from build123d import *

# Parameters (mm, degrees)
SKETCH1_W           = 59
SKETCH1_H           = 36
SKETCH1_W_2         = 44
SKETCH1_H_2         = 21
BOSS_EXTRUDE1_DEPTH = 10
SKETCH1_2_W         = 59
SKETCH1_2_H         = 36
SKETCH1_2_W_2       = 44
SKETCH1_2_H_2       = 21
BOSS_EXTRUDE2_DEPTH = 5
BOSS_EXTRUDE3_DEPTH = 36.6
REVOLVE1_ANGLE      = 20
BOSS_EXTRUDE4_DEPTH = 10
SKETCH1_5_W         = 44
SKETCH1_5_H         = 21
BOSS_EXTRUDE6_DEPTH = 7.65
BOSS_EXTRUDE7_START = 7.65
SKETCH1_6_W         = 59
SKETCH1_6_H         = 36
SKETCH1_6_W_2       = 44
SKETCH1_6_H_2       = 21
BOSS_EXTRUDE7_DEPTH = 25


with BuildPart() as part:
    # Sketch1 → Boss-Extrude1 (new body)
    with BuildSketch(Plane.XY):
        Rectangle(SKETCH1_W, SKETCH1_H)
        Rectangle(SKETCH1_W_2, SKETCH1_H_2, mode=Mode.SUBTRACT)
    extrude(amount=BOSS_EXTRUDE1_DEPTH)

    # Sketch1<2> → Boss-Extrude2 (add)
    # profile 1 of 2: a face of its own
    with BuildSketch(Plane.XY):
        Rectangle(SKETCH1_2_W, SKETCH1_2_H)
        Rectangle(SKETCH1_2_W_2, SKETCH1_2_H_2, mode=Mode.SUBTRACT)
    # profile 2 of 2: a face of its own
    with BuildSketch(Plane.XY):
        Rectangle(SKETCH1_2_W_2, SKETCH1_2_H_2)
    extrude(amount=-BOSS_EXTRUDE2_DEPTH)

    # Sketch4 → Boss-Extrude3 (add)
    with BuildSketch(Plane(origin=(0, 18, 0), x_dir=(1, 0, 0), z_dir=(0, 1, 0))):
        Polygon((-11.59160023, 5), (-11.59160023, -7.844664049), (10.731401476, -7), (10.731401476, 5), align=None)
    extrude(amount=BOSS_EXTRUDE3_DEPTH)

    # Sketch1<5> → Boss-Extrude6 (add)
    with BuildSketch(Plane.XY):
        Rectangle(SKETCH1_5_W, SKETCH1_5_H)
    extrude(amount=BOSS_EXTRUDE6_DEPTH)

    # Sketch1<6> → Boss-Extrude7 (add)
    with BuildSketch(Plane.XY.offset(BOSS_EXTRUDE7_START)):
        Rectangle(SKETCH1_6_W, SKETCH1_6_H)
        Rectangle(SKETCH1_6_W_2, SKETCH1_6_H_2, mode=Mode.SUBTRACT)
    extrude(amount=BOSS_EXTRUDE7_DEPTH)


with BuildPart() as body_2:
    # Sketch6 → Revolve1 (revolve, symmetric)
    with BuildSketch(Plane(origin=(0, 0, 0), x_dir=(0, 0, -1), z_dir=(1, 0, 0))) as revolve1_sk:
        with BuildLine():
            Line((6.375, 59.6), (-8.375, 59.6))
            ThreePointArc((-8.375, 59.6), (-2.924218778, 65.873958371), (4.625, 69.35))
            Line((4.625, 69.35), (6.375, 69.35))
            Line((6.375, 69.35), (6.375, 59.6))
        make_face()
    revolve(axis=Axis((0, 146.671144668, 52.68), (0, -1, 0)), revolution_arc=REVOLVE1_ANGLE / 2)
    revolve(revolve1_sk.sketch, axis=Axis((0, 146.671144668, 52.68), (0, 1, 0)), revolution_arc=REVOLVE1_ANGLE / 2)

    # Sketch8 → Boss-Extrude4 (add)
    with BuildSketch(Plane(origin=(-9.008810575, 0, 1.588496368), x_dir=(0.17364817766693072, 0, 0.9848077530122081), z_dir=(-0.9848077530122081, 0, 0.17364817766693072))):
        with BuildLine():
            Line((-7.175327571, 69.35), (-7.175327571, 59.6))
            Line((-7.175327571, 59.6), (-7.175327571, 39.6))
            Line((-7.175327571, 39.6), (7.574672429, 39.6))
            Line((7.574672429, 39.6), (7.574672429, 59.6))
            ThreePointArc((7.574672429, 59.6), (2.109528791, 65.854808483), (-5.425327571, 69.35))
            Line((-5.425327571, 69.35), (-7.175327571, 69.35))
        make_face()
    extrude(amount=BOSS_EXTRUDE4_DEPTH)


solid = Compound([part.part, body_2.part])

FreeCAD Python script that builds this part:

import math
import FreeCAD as App
import Part
import Sketcher
from FreeCAD import Vector


def add_polygon(sketch, points):
    """Adds a closed chain of lines whose ends are joined by coincident constraints."""
    first, n = sketch.GeometryCount, len(points)
    for a, b in zip(points, points[1:] + points[:1]):
        sketch.addGeometry(Part.LineSegment(App.Vector(*a, 0), App.Vector(*b, 0)), False)
    for i in range(n):
        sketch.addConstraint(Sketcher.Constraint("Coincident", first + i, 2, first + (i + 1) % n, 1))

doc = App.newDocument("Part")
params = doc.addObject("Spreadsheet::Sheet", "Params")
for row, (alias, value) in enumerate([
    ("sketch1_width", "59 mm"),
    ("sketch1_width2", "44 mm"),
    ("sketch1_height", "36 mm"),
    ("sketch1_height2", "21 mm"),
    ("pad1_length", "10 mm"),
    ("sketch2_width", "59 mm"),
    ("sketch2_height", "36 mm"),
    ("pad2_length", "5 mm"),
    ("sketch3_height", "12 mm"),
    ("pad3_length", "36.6 mm"),
    ("sketch4_width", "44 mm"),
    ("sketch4_height", "21 mm"),
    ("pad4_length", "7.65 mm"),
    ("sketch5_width", "59 mm"),
    ("sketch5_width2", "44 mm"),
    ("sketch5_height", "36 mm"),
    ("sketch5_height2", "21 mm"),
    ("pad5_length", "25 mm"),
    ("sketch6_radius", "19.75 mm"),
    ("sketch6_width", "9.75 mm"),
    ("sketch6_height", "14.75 mm"),
    ("revolution_angle", "10 deg"),
    ("sketch7_radius", "19.75 mm"),
    ("sketch7_width", "9.75 mm"),
    ("sketch7_height", "14.75 mm"),
    ("revolution2_angle", "10 deg"),
    ("sketch8_radius", "20 mm"),
    ("sketch8_height", "20 mm"),
    ("sketch8_width", "14.75 mm"),
    ("sketch8_height2", "29.75 mm"),
    ("pad6_length", "10 mm"),
], start=1):
    params.set(f"A{row}", alias)
    params.set(f"B{row}", "=" + value)
    params.setAlias(f"B{row}", alias)

body = doc.addObject("PartDesign::Body", "Body")

sketch1 = doc.addObject("Sketcher::SketchObject", "Sketch")
body.addObject(sketch1)
sketch1.AttachmentSupport = (doc.XY_Plane, [""])
sketch1.MapMode = "FlatFace"
add_polygon(sketch1, [(-29.5, 18), (-29.5, -18), (29.5, -18), (29.5, 18)])
add_polygon(sketch1, [(22, -10.5), (-22, -10.5), (-22, 10.5), (22, 10.5)])
sketch1.addConstraint([
    Sketcher.Constraint("Vertical", 0),
    Sketcher.Constraint("Horizontal", 1),
    Sketcher.Constraint("Vertical", 2),
    Sketcher.Constraint("Horizontal", 3),
    Sketcher.Constraint("Horizontal", 4),
    Sketcher.Constraint("Vertical", 5),
    Sketcher.Constraint("Horizontal", 6),
    Sketcher.Constraint("Vertical", 7),
    Sketcher.Constraint("Symmetric", 0, 2, 2, 2, -1, 1),
    Sketcher.Constraint("Symmetric", 4, 2, 6, 2, -1, 1),
    Sketcher.Constraint("DistanceX", 1, 1, 1, 2, 59.0),
    Sketcher.Constraint("DistanceX", 4, 2, 4, 1, 44.0),
    Sketcher.Constraint("DistanceY", 0, 2, 0, 1, 36.0),
    Sketcher.Constraint("DistanceY", 5, 1, 5, 2, 21.0),
])
sketch1.setExpression("Constraints[18]", "Params.sketch1_width")
sketch1.setExpression("Constraints[19]", "Params.sketch1_width2")
sketch1.setExpression("Constraints[20]", "Params.sketch1_height")
sketch1.setExpression("Constraints[21]", "Params.sketch1_height2")
pad1 = doc.addObject("PartDesign::Pad", "Pad")
body.addObject(pad1)
pad1.Profile = sketch1
pad1.setExpression("Length", "Params.pad1_length")

sketch2 = doc.addObject("Sketcher::SketchObject", "Sketch001")
body.addObject(sketch2)
sketch2.AttachmentSupport = (doc.XY_Plane, [""])
sketch2.MapMode = "FlatFace"
add_polygon(sketch2, [(-29.5, 18), (-29.5, -18), (29.5, -18), (29.5, 18)])
sketch2.addConstraint([
    Sketcher.Constraint("Vertical", 0),
    Sketcher.Constraint("Horizontal", 1),
    Sketcher.Constraint("Vertical", 2),
    Sketcher.Constraint("Horizontal", 3),
    Sketcher.Constraint("Symmetric", 0, 2, 2, 2, -1, 1),
    Sketcher.Constraint("DistanceX", 1, 1, 1, 2, 59.0),
    Sketcher.Constraint("DistanceY", 0, 2, 0, 1, 36.0),
])
sketch2.setExpression("Constraints[9]", "Params.sketch2_width")
sketch2.setExpression("Constraints[10]", "Params.sketch2_height")
pad2 = doc.addObject("PartDesign::Pad", "Pad001")
body.addObject(pad2)
pad2.Profile = sketch2
pad2.setExpression("Length", "Params.pad2_length")
pad2.Reversed = True

sketch3 = doc.addObject("Sketcher::SketchObject", "Sketch002")
body.addObject(sketch3)
sketch3.AttachmentSupport = (doc.XZ_Plane, [""])
sketch3.MapMode = "FlatFace"
sketch3.AttachmentOffset = App.Placement(Vector(0, 0, -18), App.Rotation())
add_polygon(sketch3, [(-11.5916, -5), (-11.5916, 7.844664), (10.731401, 7), (10.731401, -5)])
sketch3.addConstraint([
    Sketcher.Constraint("Vertical", 0),
    Sketcher.Constraint("Vertical", 2),
    Sketcher.Constraint("Horizontal", 3),
    Sketcher.Constraint("DistanceY", 2, 2, 2, 1, 12.0),
    Sketcher.Constraint("DistanceY", -1, 1, 1, 2, 7.0),
    Sketcher.Constraint("DistanceX", 3, 2, 3, 1, 22.323002),
    Sketcher.Constraint("DistanceX", 0, 2, -1, 1, 11.5916),
    Sketcher.Constraint("DistanceY", 0, 1, 0, 2, 12.844664),
])
sketch3.setExpression("Constraints[7]", "Params.sketch3_height")
pad3 = doc.addObject("PartDesign::Pad", "Pad002")
body.addObject(pad3)
pad3.Profile = sketch3
pad3.setExpression("Length", "Params.pad3_length")
pad3.Reversed = True

sketch4 = doc.addObject("Sketcher::SketchObject", "Sketch003")
body.addObject(sketch4)
sketch4.AttachmentSupport = (doc.XY_Plane, [""])
sketch4.MapMode = "FlatFace"
add_polygon(sketch4, [(-22, 10.5), (-22, -10.5), (22, -10.5), (22, 10.5)])
sketch4.addConstraint([
    Sketcher.Constraint("Vertical", 0),
    Sketcher.Constraint("Horizontal", 1),
    Sketcher.Constraint("Vertical", 2),
    Sketcher.Constraint("Horizontal", 3),
    Sketcher.Constraint("Symmetric", 0, 2, 2, 2, -1, 1),
    Sketcher.Constraint("DistanceX", 1, 1, 1, 2, 44.0),
    Sketcher.Constraint("DistanceY", 0, 2, 0, 1, 21.0),
])
sketch4.setExpression("Constraints[9]", "Params.sketch4_width")
sketch4.setExpression("Constraints[10]", "Params.sketch4_height")
pad4 = doc.addObject("PartDesign::Pad", "Pad003")
body.addObject(pad4)
pad4.Profile = sketch4
pad4.setExpression("Length", "Params.pad4_length")

sketch5 = doc.addObject("Sketcher::SketchObject", "Sketch004")
body.addObject(sketch5)
sketch5.AttachmentSupport = (doc.XY_Plane, [""])
sketch5.MapMode = "FlatFace"
sketch5.AttachmentOffset = App.Placement(Vector(0, 0, 7.65), App.Rotation())
add_polygon(sketch5, [(-29.5, 18), (-29.5, -18), (29.5, -18), (29.5, 18)])
add_polygon(sketch5, [(22, -10.5), (-22, -10.5), (-22, 10.5), (22, 10.5)])
sketch5.addConstraint([
    Sketcher.Constraint("Vertical", 0),
    Sketcher.Constraint("Horizontal", 1),
    Sketcher.Constraint("Vertical", 2),
    Sketcher.Constraint("Horizontal", 3),
    Sketcher.Constraint("Horizontal", 4),
    Sketcher.Constraint("Vertical", 5),
    Sketcher.Constraint("Horizontal", 6),
    Sketcher.Constraint("Vertical", 7),
    Sketcher.Constraint("Symmetric", 0, 2, 2, 2, -1, 1),
    Sketcher.Constraint("Symmetric", 4, 2, 6, 2, -1, 1),
    Sketcher.Constraint("DistanceX", 1, 1, 1, 2, 59.0),
    Sketcher.Constraint("DistanceX", 4, 2, 4, 1, 44.0),
    Sketcher.Constraint("DistanceY", 0, 2, 0, 1, 36.0),
    Sketcher.Constraint("DistanceY", 5, 1, 5, 2, 21.0),
])
sketch5.setExpression("Constraints[18]", "Params.sketch5_width")
sketch5.setExpression("Constraints[19]", "Params.sketch5_width2")
sketch5.setExpression("Constraints[20]", "Params.sketch5_height")
sketch5.setExpression("Constraints[21]", "Params.sketch5_height2")
pad5 = doc.addObject("PartDesign::Pad", "Pad004")
body.addObject(pad5)
pad5.Profile = sketch5
pad5.setExpression("Length", "Params.pad5_length")
body2 = doc.addObject("PartDesign::Body", "Body001")

sketch6 = doc.addObject("Sketcher::SketchObject", "Sketch005")
body2.addObject(sketch6)
sketch6.AttachmentSupport = (doc.getObject("YZ_Plane001"), [""])
sketch6.MapMode = "FlatFace"
sketch6.addGeometry([
    Part.LineSegment(Vector(59.6, 8.375, 0), Vector(59.6, -6.375, 0)),
    Part.LineSegment(Vector(59.6, -6.375, 0), Vector(69.35, -6.375, 0)),
    Part.LineSegment(Vector(69.35, -6.375, 0), Vector(69.35, -4.625, 0)),
    Part.ArcOfCircle(Part.Circle(Vector(50.073958, -8.925781, 0), Vector(0, 0, 1), 19.75), math.radians(12.577564), math.radians(61.162231)),
], False)
sketch6.addGeometry(Part.LineSegment(Vector(69.35, 52.68, 0), Vector(50.073958, 52.68, 0)), True)
sketch6.addConstraint([
    Sketcher.Constraint("Coincident", 0, 2, 1, 1),
    Sketcher.Constraint("Coincident", 1, 2, 2, 1),
    Sketcher.Constraint("Coincident", 2, 2, 3, 1),
    Sketcher.Constraint("Coincident", 3, 2, 0, 1),
    Sketcher.Constraint("Vertical", 0),
    Sketcher.Constraint("Horizontal", 1),
    Sketcher.Constraint("Vertical", 2),
    Sketcher.Constraint("Horizontal", 4),
    Sketcher.Constraint("Vertical", 2, 2, 4, 1),
    Sketcher.Constraint("Vertical", 3, 3, 4, 2),
    Sketcher.Constraint("Radius", 3, 19.75),
    Sketcher.Constraint("DistanceY", 2, 2, 3, 2, 13.0),
    Sketcher.Constraint("DistanceX", 1, 1, 1, 2, 9.75),
    Sketcher.Constraint("DistanceY", 0, 2, 0, 1, 14.75),
    Sketcher.Constraint("DistanceX", -1, 1, 0, 2, 59.6),
    Sketcher.Constraint("DistanceY", -1, 1, 4, 1, 52.68),
    Sketcher.Constraint("DistanceY", 0, 2, -1, 1, 6.375),
])
sketch6.setExpression("Constraints[10]", "Params.sketch6_radius")
sketch6.setExpression("Constraints[12]", "Params.sketch6_width")
sketch6.setExpression("Constraints[13]", "Params.sketch6_height")
revolution = doc.addObject("PartDesign::Revolution", "Revolution")
body2.addObject(revolution)
revolution.Profile = sketch6
revolution.ReferenceAxis = (sketch6, ["Axis0"])
revolution.setExpression("Angle", "Params.revolution_angle")

sketch7 = doc.addObject("Sketcher::SketchObject", "Sketch006")
body2.addObject(sketch7)
sketch7.AttachmentSupport = (doc.getObject("YZ_Plane001"), [""])
sketch7.MapMode = "FlatFace"
sketch7.addGeometry([
    Part.LineSegment(Vector(59.6, 8.375, 0), Vector(59.6, -6.375, 0)),
    Part.LineSegment(Vector(59.6, -6.375, 0), Vector(69.35, -6.375, 0)),
    Part.LineSegment(Vector(69.35, -6.375, 0), Vector(69.35, -4.625, 0)),
    Part.ArcOfCircle(Part.Circle(Vector(50.073958, -8.925781, 0), Vector(0, 0, 1), 19.75), math.radians(12.577564), math.radians(61.162231)),
], False)
sketch7.addGeometry(Part.LineSegment(Vector(50.073958, 52.68, 0), Vector(69.35, 52.68, 0)), True)
sketch7.addConstraint([
    Sketcher.Constraint("Coincident", 0, 2, 1, 1),
    Sketcher.Constraint("Coincident", 1, 2, 2, 1),
    Sketcher.Constraint("Coincident", 2, 2, 3, 1),
    Sketcher.Constraint("Coincident", 3, 2, 0, 1),
    Sketcher.Constraint("Vertical", 0),
    Sketcher.Constraint("Horizontal", 1),
    Sketcher.Constraint("Vertical", 2),
    Sketcher.Constraint("Horizontal", 4),
    Sketcher.Constraint("Vertical", 3, 3, 4, 1),
    Sketcher.Constraint("Vertical", 2, 2, 4, 2),
    Sketcher.Constraint("Radius", 3, 19.75),
    Sketcher.Constraint("DistanceY", 2, 2, 3, 2, 13.0),
    Sketcher.Constraint("DistanceX", 1, 1, 1, 2, 9.75),
    Sketcher.Constraint("DistanceY", 0, 2, 0, 1, 14.75),
    Sketcher.Constraint("DistanceX", -1, 1, 0, 2, 59.6),
    Sketcher.Constraint("DistanceY", -1, 1, 4, 1, 52.68),
    Sketcher.Constraint("DistanceY", 0, 2, -1, 1, 6.375),
])
sketch7.setExpression("Constraints[10]", "Params.sketch7_radius")
sketch7.setExpression("Constraints[12]", "Params.sketch7_width")
sketch7.setExpression("Constraints[13]", "Params.sketch7_height")
revolution2 = doc.addObject("PartDesign::Revolution", "Revolution001")
body2.addObject(revolution2)
revolution2.Profile = sketch7
revolution2.ReferenceAxis = (sketch7, ["Axis0"])
revolution2.setExpression("Angle", "Params.revolution2_angle")

sketch8 = doc.addObject("Sketcher::SketchObject", "Sketch007")
body2.addObject(sketch8)
sketch8.Placement = App.Placement(Vector(-9.008811, 0, 1.588496), App.Rotation(Vector(0.173648178, 0, 0.984807753), Vector(0, 1, 0), Vector(-0.984807753, 0, 0.173648178), "ZXY"))
sketch8.addGeometry([
    Part.LineSegment(Vector(-7.175328, 69.35, 0), Vector(-7.175328, 39.6, 0)),
    Part.LineSegment(Vector(-7.175328, 39.6, 0), Vector(7.574672, 39.6, 0)),
    Part.LineSegment(Vector(7.574672, 39.6, 0), Vector(7.574672, 59.6, 0)),
    Part.ArcOfCircle(Part.Circle(Vector(-9.890471, 49.854808, 0), Vector(0, 0, 1), 20), math.radians(29.16062), math.radians(77.099585)),
    Part.LineSegment(Vector(-5.425328, 69.35, 0), Vector(-7.175328, 69.35, 0)),
], False)
sketch8.addConstraint([
    Sketcher.Constraint("Coincident", 0, 2, 1, 1),
    Sketcher.Constraint("Coincident", 1, 2, 2, 1),
    Sketcher.Constraint("Coincident", 2, 2, 3, 1),
    Sketcher.Constraint("Coincident", 3, 2, 4, 1),
    Sketcher.Constraint("Coincident", 4, 2, 0, 1),
    Sketcher.Constraint("Vertical", 0),
    Sketcher.Constraint("Horizontal", 1),
    Sketcher.Constraint("Vertical", 2),
    Sketcher.Constraint("Horizontal", 4),
    Sketcher.Constraint("Radius", 3, 20.0),
    Sketcher.Constraint("DistanceY", 2, 1, 2, 2, 20.0),
    Sketcher.Constraint("DistanceX", 3, 2, 2, 2, 13.0),
    Sketcher.Constraint("DistanceX", 1, 1, 1, 2, 14.75),
    Sketcher.Constraint("DistanceY", 0, 2, 0, 1, 29.75),
    Sketcher.Constraint("DistanceY", -1, 1, 0, 2, 39.6),
    Sketcher.Constraint("DistanceX", 3, 3, -1, 1, 9.890471),
])
sketch8.setExpression("Constraints[9]", "Params.sketch8_radius")
sketch8.setExpression("Constraints[10]", "Params.sketch8_height")
sketch8.setExpression("Constraints[12]", "Params.sketch8_width")
sketch8.setExpression("Constraints[13]", "Params.sketch8_height2")
pad6 = doc.addObject("PartDesign::Pad", "Pad005")
body2.addObject(pad6)
pad6.Profile = sketch8
pad6.setExpression("Length", "Params.pad6_length")

doc.recompute()
